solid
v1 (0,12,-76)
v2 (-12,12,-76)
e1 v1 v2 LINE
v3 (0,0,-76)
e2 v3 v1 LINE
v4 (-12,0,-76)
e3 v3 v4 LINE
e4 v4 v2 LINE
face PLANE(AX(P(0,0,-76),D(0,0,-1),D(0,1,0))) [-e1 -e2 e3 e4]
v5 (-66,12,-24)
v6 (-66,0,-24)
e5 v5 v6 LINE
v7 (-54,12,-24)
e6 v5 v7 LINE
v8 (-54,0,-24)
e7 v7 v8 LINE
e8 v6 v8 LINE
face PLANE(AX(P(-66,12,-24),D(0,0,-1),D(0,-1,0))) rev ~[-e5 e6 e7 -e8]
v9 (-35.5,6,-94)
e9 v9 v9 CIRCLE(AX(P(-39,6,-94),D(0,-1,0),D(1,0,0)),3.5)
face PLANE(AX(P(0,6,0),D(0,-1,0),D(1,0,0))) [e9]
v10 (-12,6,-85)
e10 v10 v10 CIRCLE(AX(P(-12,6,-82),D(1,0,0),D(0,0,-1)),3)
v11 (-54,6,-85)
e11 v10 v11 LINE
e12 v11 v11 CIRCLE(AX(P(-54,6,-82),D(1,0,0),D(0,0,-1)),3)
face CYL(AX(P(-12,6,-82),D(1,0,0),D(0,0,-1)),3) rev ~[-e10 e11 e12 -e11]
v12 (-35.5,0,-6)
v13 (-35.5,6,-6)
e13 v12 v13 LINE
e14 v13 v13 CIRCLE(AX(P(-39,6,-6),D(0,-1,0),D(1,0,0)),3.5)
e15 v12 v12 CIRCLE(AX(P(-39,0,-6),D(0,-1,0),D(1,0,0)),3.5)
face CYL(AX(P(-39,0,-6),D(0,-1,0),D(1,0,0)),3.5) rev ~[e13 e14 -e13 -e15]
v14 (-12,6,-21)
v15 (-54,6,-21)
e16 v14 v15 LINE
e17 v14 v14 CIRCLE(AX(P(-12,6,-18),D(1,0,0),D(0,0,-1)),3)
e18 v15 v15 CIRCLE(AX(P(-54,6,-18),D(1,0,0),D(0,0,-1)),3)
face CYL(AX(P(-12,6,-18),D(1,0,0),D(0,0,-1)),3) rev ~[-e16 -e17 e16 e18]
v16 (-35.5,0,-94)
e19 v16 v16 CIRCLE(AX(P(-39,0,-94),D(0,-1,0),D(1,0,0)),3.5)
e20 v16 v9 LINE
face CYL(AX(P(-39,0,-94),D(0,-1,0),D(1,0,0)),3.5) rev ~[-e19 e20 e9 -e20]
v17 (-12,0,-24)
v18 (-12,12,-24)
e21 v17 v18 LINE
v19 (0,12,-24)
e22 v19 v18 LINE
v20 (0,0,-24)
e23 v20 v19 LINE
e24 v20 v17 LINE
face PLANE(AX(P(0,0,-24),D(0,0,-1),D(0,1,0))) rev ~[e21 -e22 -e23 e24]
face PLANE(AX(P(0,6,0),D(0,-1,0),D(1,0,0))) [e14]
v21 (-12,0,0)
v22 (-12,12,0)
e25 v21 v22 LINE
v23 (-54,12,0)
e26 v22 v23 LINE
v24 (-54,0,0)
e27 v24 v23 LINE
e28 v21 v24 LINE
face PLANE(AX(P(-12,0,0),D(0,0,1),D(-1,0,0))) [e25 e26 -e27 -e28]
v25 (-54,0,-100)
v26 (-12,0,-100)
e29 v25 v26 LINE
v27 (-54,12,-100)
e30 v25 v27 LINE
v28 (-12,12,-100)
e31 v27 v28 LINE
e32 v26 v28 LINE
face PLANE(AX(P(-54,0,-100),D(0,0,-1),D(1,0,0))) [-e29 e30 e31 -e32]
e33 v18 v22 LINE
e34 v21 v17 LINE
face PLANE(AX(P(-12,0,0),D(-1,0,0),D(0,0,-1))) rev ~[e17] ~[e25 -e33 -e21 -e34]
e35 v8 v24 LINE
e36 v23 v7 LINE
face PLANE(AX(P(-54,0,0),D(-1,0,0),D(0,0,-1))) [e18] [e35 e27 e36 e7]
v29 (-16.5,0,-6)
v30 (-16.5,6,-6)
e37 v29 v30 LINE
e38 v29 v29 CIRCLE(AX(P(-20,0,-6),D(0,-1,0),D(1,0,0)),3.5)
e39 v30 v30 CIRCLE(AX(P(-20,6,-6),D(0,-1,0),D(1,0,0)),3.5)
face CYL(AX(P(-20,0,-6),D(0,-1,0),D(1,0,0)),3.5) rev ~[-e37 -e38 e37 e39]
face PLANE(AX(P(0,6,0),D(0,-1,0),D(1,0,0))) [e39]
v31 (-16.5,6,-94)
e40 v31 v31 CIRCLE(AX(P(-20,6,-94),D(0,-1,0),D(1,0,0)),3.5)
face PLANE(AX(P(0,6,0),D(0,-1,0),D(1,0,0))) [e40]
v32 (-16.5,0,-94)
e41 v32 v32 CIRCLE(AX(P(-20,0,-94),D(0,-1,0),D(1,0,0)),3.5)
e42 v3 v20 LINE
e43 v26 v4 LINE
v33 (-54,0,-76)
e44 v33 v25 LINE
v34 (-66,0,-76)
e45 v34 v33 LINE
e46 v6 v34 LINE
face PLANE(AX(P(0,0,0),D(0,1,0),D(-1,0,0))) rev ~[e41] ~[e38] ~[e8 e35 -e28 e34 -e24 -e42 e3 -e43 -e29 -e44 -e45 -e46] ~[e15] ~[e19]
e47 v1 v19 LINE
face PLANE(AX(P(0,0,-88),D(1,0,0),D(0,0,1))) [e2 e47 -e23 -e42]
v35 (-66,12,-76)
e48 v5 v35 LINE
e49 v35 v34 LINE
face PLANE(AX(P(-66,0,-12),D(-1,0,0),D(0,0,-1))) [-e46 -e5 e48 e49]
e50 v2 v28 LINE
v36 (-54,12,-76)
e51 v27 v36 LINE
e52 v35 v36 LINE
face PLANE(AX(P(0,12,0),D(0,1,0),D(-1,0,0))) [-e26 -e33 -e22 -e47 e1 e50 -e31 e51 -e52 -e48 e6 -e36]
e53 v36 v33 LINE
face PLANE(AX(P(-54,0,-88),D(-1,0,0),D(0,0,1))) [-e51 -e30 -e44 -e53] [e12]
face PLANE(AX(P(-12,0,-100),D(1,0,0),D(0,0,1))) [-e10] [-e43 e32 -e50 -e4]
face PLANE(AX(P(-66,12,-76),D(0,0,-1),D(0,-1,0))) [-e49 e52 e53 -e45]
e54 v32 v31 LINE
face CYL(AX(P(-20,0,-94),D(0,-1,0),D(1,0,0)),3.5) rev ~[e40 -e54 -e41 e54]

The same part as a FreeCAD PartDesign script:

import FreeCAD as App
import Part
import Sketcher

V = App.Vector


def add_polygon(sketch, points):
    """Adds a closed chain of lines whose ends are joined by coincident constraints."""
    first, n = sketch.GeometryCount, len(points)
    for a, b in zip(points, points[1:] + points[:1]):
        sketch.addGeometry(Part.LineSegment(App.Vector(*a, 0), App.Vector(*b, 0)), False)
    for i in range(n):
        sketch.addConstraint(Sketcher.Constraint("Coincident", first + i, 2, first + (i + 1) % n, 1))

doc = App.newDocument("Part")
params = doc.addObject("Spreadsheet::Sheet", "Params")
for row, (alias, value) in enumerate([
    ("sketch1_width", "12 mm"),
    ("pad1_length", "12 mm"),
    ("sketch2_width", "12 mm"),
    ("pocket1_length", "12 mm"),
    ("sketch3_width", "12 mm"),
    ("pocket2_length", "12 mm"),
    ("sketch4_diameter", "6 mm"),
    ("sketch5_diameter", "7 mm"),
    ("pocket4_length", "6 mm"),
], start=1):
    params.set(f"A{row}", alias)
    params.set(f"B{row}", "=" + value)
    params.setAlias(f"B{row}", alias)

body = doc.addObject("PartDesign::Body", "Body")

# Sketch on XZ plane
sketch1 = body.newObject("Sketcher::SketchObject", "Sketch")
sketch1.AttachmentSupport = (doc.getObject("XZ_Plane"), [""])
sketch1.MapMode = "FlatFace"
add_polygon(sketch1, [(-54, 0), (-12, 0), (-12, -12), (0, -12), (0, -88), (-12, -88), (-12, -100), (-54, -100), (-54, -88), (-66, -88), (-66, -12), (-54, -12)])  # lines 0-11
sketch1.addConstraint([
    Sketcher.Constraint("Horizontal", 0),
    Sketcher.Constraint("Vertical", 1),
    Sketcher.Constraint("Horizontal", 2),
    Sketcher.Constraint("Vertical", 3),
    Sketcher.Constraint("Horizontal", 4),
    Sketcher.Constraint("Vertical", 5),
    Sketcher.Constraint("Horizontal", 6),
    Sketcher.Constraint("Vertical", 7),
    Sketcher.Constraint("Horizontal", 8),
    Sketcher.Constraint("Vertical", 9),
    Sketcher.Constraint("Horizontal", 10),
    Sketcher.Constraint("Vertical", 11),
    Sketcher.Constraint("PointOnObject", 0, 2, -1),
    Sketcher.Constraint("PointOnObject", 2, 2, -2),
    Sketcher.Constraint("Horizontal", 4, 2, 7, 2),
    Sketcher.Constraint("Horizontal", 2, 2, 9, 2),
    Sketcher.Constraint("Vertical", 1, 2, 4, 2),
    Sketcher.Constraint("Vertical", 7, 2, 10, 2),
    Sketcher.Constraint("Equal", 4, 8),
    Sketcher.Constraint("Equal", 10, 1),
    Sketcher.Constraint("Equal", 1, 5),
    Sketcher.Constraint("DistanceX", 2, 1, 2, 2, 12.0),
    Sketcher.Constraint("DistanceY", 5, 2, -1, 1, 100.0),
    Sketcher.Constraint("DistanceX", 8, 2, -1, 1, 66.0),
])
sketch1.setExpression("Constraints[33]", "Params.sketch1_width")
pad1 = body.newObject("PartDesign::Pad", "Pad")
pad1.Profile = sketch1
pad1.setExpression("Length", "Params.pad1_length")
pad1.Reversed = True

# Sketch on YZ plane
sketch2 = body.newObject("Sketcher::SketchObject", "Sketch001")
sketch2.AttachmentSupport = (doc.getObject("YZ_Plane"), [""])
sketch2.MapMode = "FlatFace"
sketch2.AttachmentOffset = App.Placement(V(0, 0, -66), App.Rotation())
add_polygon(sketch2, [(12, -76), (12, -88), (0, -88), (0, -76)])  # lines 0-3
add_polygon(sketch2, [(0, -12), (12, -12), (12, -24), (0, -24)])  # lines 4-7
sketch2.addConstraint([
    Sketcher.Constraint("Vertical", 0),
    Sketcher.Constraint("Horizontal", 1),
    Sketcher.Constraint("Vertical", 2),
    Sketcher.Constraint("Horizontal", 3),
    Sketcher.Constraint("Horizontal", 4),
    Sketcher.Constraint("Vertical", 5),
    Sketcher.Constraint("Horizontal", 6),
    Sketcher.Constraint("Vertical", 7),
    Sketcher.Constraint("PointOnObject", 1, 2, -2),
    Sketcher.Constraint("PointOnObject", 6, 2, -2),
    Sketcher.Constraint("Vertical", 3, 2, 4, 2),
    Sketcher.Constraint("Equal", 6, 0),
    Sketcher.Constraint("Equal", 2, 5),
    Sketcher.Constraint("DistanceX", 1, 2, 1, 1, 12.0),
    Sketcher.Constraint("DistanceY", 4, 2, -1, 1, 12.0),
    Sketcher.Constraint("DistanceY", 0, 2, -1, 1, 88.0),
])
sketch2.setExpression("Constraints[21]", "Params.sketch2_width")
pocket1 = body.newObject("PartDesign::Pocket", "Pocket")
pocket1.Profile = sketch2
pocket1.setExpression("Length", "Params.pocket1_length")
pocket1.Reversed = True

# Sketch on YZ plane
sketch3 = body.newObject("Sketcher::SketchObject", "Sketch002")
sketch3.AttachmentSupport = (doc.getObject("YZ_Plane"), [""])
sketch3.MapMode = "FlatFace"
add_polygon(sketch3, [(0, -76), (0, -88), (12, -88), (12, -76)])  # lines 0-3
add_polygon(sketch3, [(0, -12), (0, -24), (12, -24), (12, -12)])  # lines 4-7
sketch3.addConstraint([
    Sketcher.Constraint("Vertical", 0),
    Sketcher.Constraint("Horizontal", 1),
    Sketcher.Constraint("Vertical", 2),
    Sketcher.Constraint("Horizontal", 3),
    Sketcher.Constraint("Vertical", 4),
    Sketcher.Constraint("Horizontal", 5),
    Sketcher.Constraint("Vertical", 6),
    Sketcher.Constraint("Horizontal", 7),
    Sketcher.Constraint("PointOnObject", 0, 2, -2),
    Sketcher.Constraint("PointOnObject", 4, 2, -2),
    Sketcher.Constraint("Vertical", 2, 2, 5, 2),
    Sketcher.Constraint("Equal", 7, 0),
    Sketcher.Constraint("Equal", 2, 4),
    Sketcher.Constraint("DistanceX", 1, 1, 1, 2, 12.0),
    Sketcher.Constraint("DistanceY", 6, 2, -1, 1, 12.0),
    Sketcher.Constraint("DistanceY", 0, 2, -1, 1, 88.0),
])
sketch3.setExpression("Constraints[21]", "Params.sketch3_width")
pocket2 = body.newObject("PartDesign::Pocket", "Pocket001")
pocket2.Profile = sketch3
pocket2.setExpression("Length", "Params.pocket2_length")

# Sketch on YZ plane
sketch4 = body.newObject("Sketcher::SketchObject", "Sketch003")
sketch4.AttachmentSupport = (doc.getObject("YZ_Plane"), [""])
sketch4.MapMode = "FlatFace"
sketch4.AttachmentOffset = App.Placement(V(0, 0, -12), App.Rotation())
sketch4.addGeometry([
    Part.Circle(V(6, -82, 0), V(0, 0, 1), 3),
    Part.Circle(V(6, -18, 0), V(0, 0, 1), 3),
], False)
sketch4.addConstraint([
    Sketcher.Constraint("Equal", 0, 1),
    Sketcher.Constraint("Vertical", 0, 3, 1, 3),
    Sketcher.Constraint("Diameter", 0, 6.0),
    Sketcher.Constraint("DistanceX", -1, 1, 0, 3, 6.0),
    Sketcher.Constraint("DistanceY", 0, 3, -1, 1, 82.0),
    Sketcher.Constraint("DistanceY", 1, 3, -1, 1, 18.0),
])
sketch4.setExpression("Constraints[2]", "Params.sketch4_diameter")
pocket3 = body.newObject("PartDesign::Pocket", "Pocket002")
pocket3.Profile = sketch4
pocket3.Type = "UpToFirst"

# Sketch on XZ plane
sketch5 = body.newObject("Sketcher::SketchObject", "Sketch004")
sketch5.AttachmentSupport = (doc.getObject("XZ_Plane"), [""])
sketch5.MapMode = "FlatFace"
sketch5.addGeometry([
    Part.Circle(V(-20, -6, 0), V(0, 0, 1), 3.5),
    Part.Circle(V(-39, -6, 0), V(0, 0, 1), 3.5),
    Part.Circle(V(-20, -94, 0), V(0, 0, 1), 3.5),
    Part.Circle(V(-39, -94, 0), V(0, 0, 1), 3.5),
], False)
sketch5.addConstraint([
    Sketcher.Constraint("Equal", 0, 1),
    Sketcher.Constraint("Equal", 1, 2),
    Sketcher.Constraint("Equal", 2, 3),
    Sketcher.Constraint("Horizontal", 0, 3, 1, 3),
    Sketcher.Constraint("Horizontal", 2, 3, 3, 3),
    Sketcher.Constraint("Vertical", 0, 3, 2, 3),
    Sketcher.Constraint("Vertical", 1, 3, 3, 3),
    Sketcher.Constraint("Diameter", 0, 7.0),
    Sketcher.Constraint("DistanceY", 0, 3, -1, 1, 6.0),
    Sketcher.Constraint("DistanceX", 1, 3, 0, 3, 19.0),
    Sketcher.Constraint("DistanceX", 0, 3, -1, 1, 20.0),
    Sketcher.Constraint("DistanceY", 2, 3, -1, 1, 94.0),
])
sketch5.setExpression("Constraints[7]", "Params.sketch5_diameter")
pocket4 = body.newObject("PartDesign::Pocket", "Pocket003")
pocket4.Profile = sketch5
pocket4.setExpression("Length", "Params.pocket4_length")

doc.recompute()
